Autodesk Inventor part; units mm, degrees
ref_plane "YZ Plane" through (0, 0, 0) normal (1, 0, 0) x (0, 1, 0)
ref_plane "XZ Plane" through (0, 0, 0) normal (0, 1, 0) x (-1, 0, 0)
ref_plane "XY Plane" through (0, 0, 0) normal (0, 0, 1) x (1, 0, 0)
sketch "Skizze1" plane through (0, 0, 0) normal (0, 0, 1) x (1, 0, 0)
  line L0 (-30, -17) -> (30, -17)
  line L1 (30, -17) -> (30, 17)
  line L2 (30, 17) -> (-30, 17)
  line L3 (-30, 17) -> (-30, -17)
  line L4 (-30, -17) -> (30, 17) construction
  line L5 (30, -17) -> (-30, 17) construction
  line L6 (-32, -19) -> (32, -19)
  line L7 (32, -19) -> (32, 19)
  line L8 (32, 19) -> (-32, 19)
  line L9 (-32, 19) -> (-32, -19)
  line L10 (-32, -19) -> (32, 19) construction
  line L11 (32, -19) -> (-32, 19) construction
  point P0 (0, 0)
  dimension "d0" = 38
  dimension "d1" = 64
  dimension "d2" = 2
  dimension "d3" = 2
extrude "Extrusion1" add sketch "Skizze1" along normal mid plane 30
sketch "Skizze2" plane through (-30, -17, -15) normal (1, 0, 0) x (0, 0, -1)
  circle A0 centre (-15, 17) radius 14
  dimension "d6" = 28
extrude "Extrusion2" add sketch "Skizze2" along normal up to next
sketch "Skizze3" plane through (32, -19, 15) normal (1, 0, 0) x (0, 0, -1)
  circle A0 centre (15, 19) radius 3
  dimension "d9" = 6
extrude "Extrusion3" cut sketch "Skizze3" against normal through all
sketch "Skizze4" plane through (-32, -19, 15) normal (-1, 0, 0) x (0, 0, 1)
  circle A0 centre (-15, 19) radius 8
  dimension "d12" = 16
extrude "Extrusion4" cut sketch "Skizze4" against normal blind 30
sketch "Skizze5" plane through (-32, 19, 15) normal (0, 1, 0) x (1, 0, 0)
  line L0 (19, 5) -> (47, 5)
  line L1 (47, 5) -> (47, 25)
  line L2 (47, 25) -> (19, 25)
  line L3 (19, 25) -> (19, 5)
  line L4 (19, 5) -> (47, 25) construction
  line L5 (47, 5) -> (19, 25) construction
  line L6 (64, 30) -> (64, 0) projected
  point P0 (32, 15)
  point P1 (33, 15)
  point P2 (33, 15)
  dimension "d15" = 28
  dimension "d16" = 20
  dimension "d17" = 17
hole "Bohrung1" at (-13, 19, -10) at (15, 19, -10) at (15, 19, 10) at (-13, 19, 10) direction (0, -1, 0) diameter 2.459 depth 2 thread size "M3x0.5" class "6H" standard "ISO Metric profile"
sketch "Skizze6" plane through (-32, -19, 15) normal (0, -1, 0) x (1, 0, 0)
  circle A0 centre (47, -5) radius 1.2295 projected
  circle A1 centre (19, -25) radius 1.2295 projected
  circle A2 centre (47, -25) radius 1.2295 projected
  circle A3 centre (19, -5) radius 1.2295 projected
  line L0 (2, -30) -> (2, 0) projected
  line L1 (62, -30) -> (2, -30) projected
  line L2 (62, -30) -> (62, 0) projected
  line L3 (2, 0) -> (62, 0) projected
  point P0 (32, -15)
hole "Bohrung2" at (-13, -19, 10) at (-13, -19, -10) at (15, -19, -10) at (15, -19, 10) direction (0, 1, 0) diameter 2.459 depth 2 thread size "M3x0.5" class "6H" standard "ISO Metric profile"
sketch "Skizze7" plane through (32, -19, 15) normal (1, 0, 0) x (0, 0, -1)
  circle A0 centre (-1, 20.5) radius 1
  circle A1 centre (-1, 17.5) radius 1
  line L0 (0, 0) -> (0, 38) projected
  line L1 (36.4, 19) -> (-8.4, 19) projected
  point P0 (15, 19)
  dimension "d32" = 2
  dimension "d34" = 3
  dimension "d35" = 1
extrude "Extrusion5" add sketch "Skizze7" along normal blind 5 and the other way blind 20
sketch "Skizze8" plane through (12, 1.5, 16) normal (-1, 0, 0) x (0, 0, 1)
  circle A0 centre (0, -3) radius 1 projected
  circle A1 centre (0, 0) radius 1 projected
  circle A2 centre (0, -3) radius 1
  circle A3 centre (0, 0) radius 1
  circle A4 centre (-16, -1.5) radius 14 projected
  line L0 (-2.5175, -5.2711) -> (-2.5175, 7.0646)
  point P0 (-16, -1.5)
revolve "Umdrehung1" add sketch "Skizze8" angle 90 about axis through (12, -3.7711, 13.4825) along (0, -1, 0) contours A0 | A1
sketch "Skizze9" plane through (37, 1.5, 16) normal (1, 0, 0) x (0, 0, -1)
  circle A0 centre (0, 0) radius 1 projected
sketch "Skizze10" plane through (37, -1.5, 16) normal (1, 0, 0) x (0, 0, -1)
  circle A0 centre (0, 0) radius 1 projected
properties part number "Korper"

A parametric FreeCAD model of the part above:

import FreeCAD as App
import Part
import Sketcher

V = App.Vector
Q = App.Units.Quantity

doc = App.newDocument("Part")
body = doc.addObject("PartDesign::Body", "Body")
body.AllowCompound = True

# Sketch on XY plane
sketch1 = body.newObject("Sketcher::SketchObject", "Sketch")
sketch1.AttachmentSupport = (doc.getObject("XY_Plane"), [""])
sketch1.MapMode = "FlatFace"
sketch1.addGeometry(Part.LineSegment(V(-32, 19, 0), V(-32, -19, 0)), False)
sketch1.addGeometry(Part.LineSegment(V(-32, -19, 0), V(32, -19, 0)), False)
sketch1.addGeometry(Part.LineSegment(V(32, -19, 0), V(32, 19, 0)), False)
sketch1.addGeometry(Part.LineSegment(V(32, 19, 0), V(-32, 19, 0)), False)
sketch1.addGeometry(Part.LineSegment(V(30, -17, 0), V(-30, -17, 0)), False)
sketch1.addGeometry(Part.LineSegment(V(-30, -17, 0), V(-30, 17, 0)), False)
sketch1.addGeometry(Part.LineSegment(V(-30, 17, 0), V(30, 17, 0)), False)
sketch1.addGeometry(Part.LineSegment(V(30, 17, 0), V(30, -17, 0)), False)
sketch1.addConstraint(Sketcher.Constraint("Coincident", 0, 2, 1, 1))
sketch1.addConstraint(Sketcher.Constraint("Coincident", 1, 2, 2, 1))
sketch1.addConstraint(Sketcher.Constraint("Coincident", 2, 2, 3, 1))
sketch1.addConstraint(Sketcher.Constraint("Coincident", 3, 2, 0, 1))
sketch1.addConstraint(Sketcher.Constraint("Coincident", 4, 2, 5, 1))
sketch1.addConstraint(Sketcher.Constraint("Coincident", 5, 2, 6, 1))
sketch1.addConstraint(Sketcher.Constraint("Coincident", 6, 2, 7, 1))
sketch1.addConstraint(Sketcher.Constraint("Coincident", 7, 2, 4, 1))
sketch1.addConstraint(Sketcher.Constraint("Vertical", 0))
sketch1.addConstraint(Sketcher.Constraint("Horizontal", 1))
sketch1.addConstraint(Sketcher.Constraint("Vertical", 2))
sketch1.addConstraint(Sketcher.Constraint("Horizontal", 3))
sketch1.addConstraint(Sketcher.Constraint("Horizontal", 4))
sketch1.addConstraint(Sketcher.Constraint("Vertical", 5))
sketch1.addConstraint(Sketcher.Constraint("Horizontal", 6))
sketch1.addConstraint(Sketcher.Constraint("Vertical", 7))
sketch1.addConstraint(Sketcher.Constraint("Symmetric", 0, 2, 2, 2, -1, 1))
sketch1.addConstraint(Sketcher.Constraint("Symmetric", 4, 2, 6, 2, -1, 1))
sketch1.addConstraint(Sketcher.Constraint("DistanceX", 1, 1, 1, 2, Q("64 mm")))
sketch1.addConstraint(Sketcher.Constraint("DistanceY", 0, 2, 0, 1, Q("38 mm")))
sketch1.addConstraint(Sketcher.Constraint("DistanceX", 0, 2, 4, 2, Q("2 mm")))
sketch1.addConstraint(Sketcher.Constraint("DistanceY", 0, 2, 4, 2, Q("2 mm")))
pad1 = body.newObject("PartDesign::Pad", "Pad")
pad1.Profile = sketch1
pad1.Length = 30
pad1.Midplane = True

# Sketch on YZ plane
sketch2 = body.newObject("Sketcher::SketchObject", "Sketch001")
sketch2.AttachmentSupport = (doc.getObject("YZ_Plane"), [""])
sketch2.MapMode = "FlatFace"
sketch2.AttachmentOffset = App.Placement(V(0, 0, -30), App.Rotation())
sketch2.addGeometry(Part.Circle(V(0, 0, 0), V(0, 0, 1), 14), False)
sketch2.addConstraint(Sketcher.Constraint("Coincident", 0, 3, -1, 1))
sketch2.addConstraint(Sketcher.Constraint("Diameter", 0, Q("28 mm")))
pad2 = body.newObject("PartDesign::Pad", "Pad001")
pad2.Profile = sketch2
pad2.Type = "UpToFirst"

# Sketch on YZ plane
sketch3 = body.newObject("Sketcher::SketchObject", "Sketch002")
sketch3.AttachmentSupport = (doc.getObject("YZ_Plane"), [""])
sketch3.MapMode = "FlatFace"
sketch3.AttachmentOffset = App.Placement(V(0, 0, 32), App.Rotation())
sketch3.addGeometry(Part.Circle(V(0, 0, 0), V(0, 0, 1), 3), False)
sketch3.addConstraint(Sketcher.Constraint("Coincident", 0, 3, -1, 1))
sketch3.addConstraint(Sketcher.Constraint("Diameter", 0, Q("6 mm")))
pocket1 = body.newObject("PartDesign::Pocket", "Pocket")
pocket1.Profile = sketch3
pocket1.Type = "ThroughAll"

# Sketch on YZ plane
sketch4 = body.newObject("Sketcher::SketchObject", "Sketch003")
sketch4.AttachmentSupport = (doc.getObject("YZ_Plane"), [""])
sketch4.MapMode = "FlatFace"
sketch4.AttachmentOffset = App.Placement(V(0, 0, -32), App.Rotation())
sketch4.addGeometry(Part.Circle(V(0, 0, 0), V(0, 0, 1), 8), False)
sketch4.addConstraint(Sketcher.Constraint("Coincident", 0, 3, -1, 1))
sketch4.addConstraint(Sketcher.Constraint("Diameter", 0, Q("16 mm")))
pocket2 = body.newObject("PartDesign::Pocket", "Pocket001")
pocket2.Profile = sketch4
pocket2.Length = 30
pocket2.Reversed = True

# Sketch on XZ plane
sketch5 = body.newObject("Sketcher::SketchObject", "Sketch004")
sketch5.AttachmentSupport = (doc.getObject("XZ_Plane"), [""])
sketch5.MapMode = "FlatFace"
sketch5.AttachmentOffset = App.Placement(V(0, 0, -19), App.Rotation())
sketch5.addGeometry(Part.Circle(V(-13, -10, 0), V(0, 0, 1), 1.2), False)
sketch5.addGeometry(Part.Circle(V(15, -10, 0), V(0, 0, 1), 1.2), False)
sketch5.addGeometry(Part.Circle(V(15, 10, 0), V(0, 0, 1), 1.2), False)
sketch5.addGeometry(Part.Circle(V(-13, 10, 0), V(0, 0, 1), 1.2), False)
sketch5.addConstraint(Sketcher.Constraint("Equal", 0, 1))
sketch5.addConstraint(Sketcher.Constraint("Equal", 1, 2))
sketch5.addConstraint(Sketcher.Constraint("Equal", 2, 3))
sketch5.addConstraint(Sketcher.Constraint("Symmetric", 1, 3, 2, 3, -1))
sketch5.addConstraint(Sketcher.Constraint("Symmetric", 0, 3, 3, 3, -1))
sketch5.addConstraint(Sketcher.Constraint("Horizontal", 0, 3, 1, 3))
sketch5.addConstraint(Sketcher.Constraint("Diameter", 0, Q("2.459 mm")))
sketch5.addConstraint(Sketcher.Constraint("DistanceX", 0, 3, -1, 1, Q("13 mm")))
sketch5.addConstraint(Sketcher.Constraint("DistanceY", 0, 3, -1, 1, Q("10 mm")))
sketch5.addConstraint(Sketcher.Constraint("DistanceX", -1, 1, 1, 3, Q("15 mm")))
doc.recompute()
hole = body.newObject("PartDesign::Hole", "Hole")
hole.Profile = sketch5
hole.ThreadType = "None"
hole.Diameter = 2.459
hole.DepthType = "Dimension"
hole.Depth = 2
hole.DrillPoint = "Flat"
hole.Reversed = True

# Sketch on XZ plane
sketch6 = body.newObject("Sketcher::SketchObject", "Sketch005")
sketch6.AttachmentSupport = (doc.getObject("XZ_Plane"), [""])
sketch6.MapMode = "FlatFace"
sketch6.AttachmentOffset = App.Placement(V(0, 0, 19), App.Rotation())
sketch6.addGeometry(Part.Circle(V(-13, 10, 0), V(0, 0, 1), 1.2), False)
sketch6.addGeometry(Part.Circle(V(-13, -10, 0), V(0, 0, 1), 1.2), False)
sketch6.addGeometry(Part.Circle(V(15, -10, 0), V(0, 0, 1), 1.2), False)
sketch6.addGeometry(Part.Circle(V(15, 10, 0), V(0, 0, 1), 1.2), False)
sketch6.addConstraint(Sketcher.Constraint("Equal", 0, 1))
sketch6.addConstraint(Sketcher.Constraint("Equal", 1, 2))
sketch6.addConstraint(Sketcher.Constraint("Equal", 2, 3))
sketch6.addConstraint(Sketcher.Constraint("Symmetric", 0, 3, 1, 3, -1))
sketch6.addConstraint(Sketcher.Constraint("Symmetric", 2, 3, 3, 3, -1))
sketch6.addConstraint(Sketcher.Constraint("Horizontal", 1, 3, 2, 3))
sketch6.addConstraint(Sketcher.Constraint("Diameter", 0, Q("2.459 mm")))
sketch6.addConstraint(Sketcher.Constraint("DistanceX", 0, 3, -1, 1, Q("13 mm")))
sketch6.addConstraint(Sketcher.Constraint("DistanceY", -1, 1, 0, 3, Q("10 mm")))
sketch6.addConstraint(Sketcher.Constraint("DistanceX", -1, 1, 2, 3, Q("15 mm")))
doc.recompute()
hole2 = body.newObject("PartDesign::Hole", "Hole001")
hole2.Profile = sketch6
hole2.ThreadType = "None"
hole2.Diameter = 2.459
hole2.DepthType = "Dimension"
hole2.Depth = 2
hole2.DrillPoint = "Flat"

# Sketch on YZ plane
sketch7 = body.newObject("Sketcher::SketchObject", "Sketch006")
sketch7.AttachmentSupport = (doc.getObject("YZ_Plane"), [""])
sketch7.MapMode = "FlatFace"
sketch7.AttachmentOffset = App.Placement(V(0, 0, 32), App.Rotation())
sketch7.addGeometry(Part.Circle(V(1.5, 16, 0), V(0, 0, 1), 1), False)
sketch7.addGeometry(Part.Circle(V(-1.5, 16, 0), V(0, 0, 1), 1), False)
sketch7.addConstraint(Sketcher.Constraint("Equal", 0, 1))
sketch7.addConstraint(Sketcher.Constraint("Symmetric", 0, 3, 1, 3, -2))
sketch7.addConstraint(Sketcher.Constraint("Diameter", 0, Q("2 mm")))
sketch7.addConstraint(Sketcher.Constraint("DistanceX", 1, 3, 0, 3, Q("3 mm")))
sketch7.addConstraint(Sketcher.Constraint("DistanceY", -1, 1, 0, 3, Q("16 mm")))
pad3 = body.newObject("PartDesign::Pad", "Pad002")
pad3.Profile = sketch7
pad3.Type = "TwoLengths"
pad3.Length = 5
pad3.Length2 = 20

# Sketch on YZ plane
sketch8 = body.newObject("Sketcher::SketchObject", "Sketch007")
sketch8.AttachmentSupport = (doc.getObject("YZ_Plane"), [""])
sketch8.MapMode = "FlatFace"
sketch8.AttachmentOffset = App.Placement(V(0, 0, 12), App.Rotation())
sketch8.addGeometry(Part.Circle(V(-1.5, 16, 0), V(0, 0, 1), 1), False)
sketch8.addGeometry(Part.Circle(V(1.5, 16, 0), V(0, 0, 1), 1), False)
sketch8.addGeometry(Part.LineSegment(V(1.5, 13.5, 0), V(-1.5, 13.5, 0)), True)  # axis
sketch8.addConstraint(Sketcher.Constraint("Horizontal", 2))
sketch8.addConstraint(Sketcher.Constraint("Equal", 0, 1))
sketch8.addConstraint(Sketcher.Constraint("Symmetric", 0, 3, 1, 3, -2))
sketch8.addConstraint(Sketcher.Constraint("Vertical", 1, 3, 2, 1))
sketch8.addConstraint(Sketcher.Constraint("Vertical", 0, 3, 2, 2))
sketch8.addConstraint(Sketcher.Constraint("Diameter", 0, Q("2 mm")))
sketch8.addConstraint(Sketcher.Constraint("DistanceX", 2, 2, 2, 1, Q("3 mm")))
sketch8.addConstraint(Sketcher.Constraint("DistanceY", -1, 1, 0, 3, Q("16 mm")))
sketch8.addConstraint(Sketcher.Constraint("DistanceY", -1, 1, 2, 1, Q("13.4825 mm")))
revolution = body.newObject("PartDesign::Revolution", "Revolution")
revolution.Profile = sketch8
revolution.ReferenceAxis = (sketch8, ["Axis0"])
revolution.Angle = 90

doc.recompute()
